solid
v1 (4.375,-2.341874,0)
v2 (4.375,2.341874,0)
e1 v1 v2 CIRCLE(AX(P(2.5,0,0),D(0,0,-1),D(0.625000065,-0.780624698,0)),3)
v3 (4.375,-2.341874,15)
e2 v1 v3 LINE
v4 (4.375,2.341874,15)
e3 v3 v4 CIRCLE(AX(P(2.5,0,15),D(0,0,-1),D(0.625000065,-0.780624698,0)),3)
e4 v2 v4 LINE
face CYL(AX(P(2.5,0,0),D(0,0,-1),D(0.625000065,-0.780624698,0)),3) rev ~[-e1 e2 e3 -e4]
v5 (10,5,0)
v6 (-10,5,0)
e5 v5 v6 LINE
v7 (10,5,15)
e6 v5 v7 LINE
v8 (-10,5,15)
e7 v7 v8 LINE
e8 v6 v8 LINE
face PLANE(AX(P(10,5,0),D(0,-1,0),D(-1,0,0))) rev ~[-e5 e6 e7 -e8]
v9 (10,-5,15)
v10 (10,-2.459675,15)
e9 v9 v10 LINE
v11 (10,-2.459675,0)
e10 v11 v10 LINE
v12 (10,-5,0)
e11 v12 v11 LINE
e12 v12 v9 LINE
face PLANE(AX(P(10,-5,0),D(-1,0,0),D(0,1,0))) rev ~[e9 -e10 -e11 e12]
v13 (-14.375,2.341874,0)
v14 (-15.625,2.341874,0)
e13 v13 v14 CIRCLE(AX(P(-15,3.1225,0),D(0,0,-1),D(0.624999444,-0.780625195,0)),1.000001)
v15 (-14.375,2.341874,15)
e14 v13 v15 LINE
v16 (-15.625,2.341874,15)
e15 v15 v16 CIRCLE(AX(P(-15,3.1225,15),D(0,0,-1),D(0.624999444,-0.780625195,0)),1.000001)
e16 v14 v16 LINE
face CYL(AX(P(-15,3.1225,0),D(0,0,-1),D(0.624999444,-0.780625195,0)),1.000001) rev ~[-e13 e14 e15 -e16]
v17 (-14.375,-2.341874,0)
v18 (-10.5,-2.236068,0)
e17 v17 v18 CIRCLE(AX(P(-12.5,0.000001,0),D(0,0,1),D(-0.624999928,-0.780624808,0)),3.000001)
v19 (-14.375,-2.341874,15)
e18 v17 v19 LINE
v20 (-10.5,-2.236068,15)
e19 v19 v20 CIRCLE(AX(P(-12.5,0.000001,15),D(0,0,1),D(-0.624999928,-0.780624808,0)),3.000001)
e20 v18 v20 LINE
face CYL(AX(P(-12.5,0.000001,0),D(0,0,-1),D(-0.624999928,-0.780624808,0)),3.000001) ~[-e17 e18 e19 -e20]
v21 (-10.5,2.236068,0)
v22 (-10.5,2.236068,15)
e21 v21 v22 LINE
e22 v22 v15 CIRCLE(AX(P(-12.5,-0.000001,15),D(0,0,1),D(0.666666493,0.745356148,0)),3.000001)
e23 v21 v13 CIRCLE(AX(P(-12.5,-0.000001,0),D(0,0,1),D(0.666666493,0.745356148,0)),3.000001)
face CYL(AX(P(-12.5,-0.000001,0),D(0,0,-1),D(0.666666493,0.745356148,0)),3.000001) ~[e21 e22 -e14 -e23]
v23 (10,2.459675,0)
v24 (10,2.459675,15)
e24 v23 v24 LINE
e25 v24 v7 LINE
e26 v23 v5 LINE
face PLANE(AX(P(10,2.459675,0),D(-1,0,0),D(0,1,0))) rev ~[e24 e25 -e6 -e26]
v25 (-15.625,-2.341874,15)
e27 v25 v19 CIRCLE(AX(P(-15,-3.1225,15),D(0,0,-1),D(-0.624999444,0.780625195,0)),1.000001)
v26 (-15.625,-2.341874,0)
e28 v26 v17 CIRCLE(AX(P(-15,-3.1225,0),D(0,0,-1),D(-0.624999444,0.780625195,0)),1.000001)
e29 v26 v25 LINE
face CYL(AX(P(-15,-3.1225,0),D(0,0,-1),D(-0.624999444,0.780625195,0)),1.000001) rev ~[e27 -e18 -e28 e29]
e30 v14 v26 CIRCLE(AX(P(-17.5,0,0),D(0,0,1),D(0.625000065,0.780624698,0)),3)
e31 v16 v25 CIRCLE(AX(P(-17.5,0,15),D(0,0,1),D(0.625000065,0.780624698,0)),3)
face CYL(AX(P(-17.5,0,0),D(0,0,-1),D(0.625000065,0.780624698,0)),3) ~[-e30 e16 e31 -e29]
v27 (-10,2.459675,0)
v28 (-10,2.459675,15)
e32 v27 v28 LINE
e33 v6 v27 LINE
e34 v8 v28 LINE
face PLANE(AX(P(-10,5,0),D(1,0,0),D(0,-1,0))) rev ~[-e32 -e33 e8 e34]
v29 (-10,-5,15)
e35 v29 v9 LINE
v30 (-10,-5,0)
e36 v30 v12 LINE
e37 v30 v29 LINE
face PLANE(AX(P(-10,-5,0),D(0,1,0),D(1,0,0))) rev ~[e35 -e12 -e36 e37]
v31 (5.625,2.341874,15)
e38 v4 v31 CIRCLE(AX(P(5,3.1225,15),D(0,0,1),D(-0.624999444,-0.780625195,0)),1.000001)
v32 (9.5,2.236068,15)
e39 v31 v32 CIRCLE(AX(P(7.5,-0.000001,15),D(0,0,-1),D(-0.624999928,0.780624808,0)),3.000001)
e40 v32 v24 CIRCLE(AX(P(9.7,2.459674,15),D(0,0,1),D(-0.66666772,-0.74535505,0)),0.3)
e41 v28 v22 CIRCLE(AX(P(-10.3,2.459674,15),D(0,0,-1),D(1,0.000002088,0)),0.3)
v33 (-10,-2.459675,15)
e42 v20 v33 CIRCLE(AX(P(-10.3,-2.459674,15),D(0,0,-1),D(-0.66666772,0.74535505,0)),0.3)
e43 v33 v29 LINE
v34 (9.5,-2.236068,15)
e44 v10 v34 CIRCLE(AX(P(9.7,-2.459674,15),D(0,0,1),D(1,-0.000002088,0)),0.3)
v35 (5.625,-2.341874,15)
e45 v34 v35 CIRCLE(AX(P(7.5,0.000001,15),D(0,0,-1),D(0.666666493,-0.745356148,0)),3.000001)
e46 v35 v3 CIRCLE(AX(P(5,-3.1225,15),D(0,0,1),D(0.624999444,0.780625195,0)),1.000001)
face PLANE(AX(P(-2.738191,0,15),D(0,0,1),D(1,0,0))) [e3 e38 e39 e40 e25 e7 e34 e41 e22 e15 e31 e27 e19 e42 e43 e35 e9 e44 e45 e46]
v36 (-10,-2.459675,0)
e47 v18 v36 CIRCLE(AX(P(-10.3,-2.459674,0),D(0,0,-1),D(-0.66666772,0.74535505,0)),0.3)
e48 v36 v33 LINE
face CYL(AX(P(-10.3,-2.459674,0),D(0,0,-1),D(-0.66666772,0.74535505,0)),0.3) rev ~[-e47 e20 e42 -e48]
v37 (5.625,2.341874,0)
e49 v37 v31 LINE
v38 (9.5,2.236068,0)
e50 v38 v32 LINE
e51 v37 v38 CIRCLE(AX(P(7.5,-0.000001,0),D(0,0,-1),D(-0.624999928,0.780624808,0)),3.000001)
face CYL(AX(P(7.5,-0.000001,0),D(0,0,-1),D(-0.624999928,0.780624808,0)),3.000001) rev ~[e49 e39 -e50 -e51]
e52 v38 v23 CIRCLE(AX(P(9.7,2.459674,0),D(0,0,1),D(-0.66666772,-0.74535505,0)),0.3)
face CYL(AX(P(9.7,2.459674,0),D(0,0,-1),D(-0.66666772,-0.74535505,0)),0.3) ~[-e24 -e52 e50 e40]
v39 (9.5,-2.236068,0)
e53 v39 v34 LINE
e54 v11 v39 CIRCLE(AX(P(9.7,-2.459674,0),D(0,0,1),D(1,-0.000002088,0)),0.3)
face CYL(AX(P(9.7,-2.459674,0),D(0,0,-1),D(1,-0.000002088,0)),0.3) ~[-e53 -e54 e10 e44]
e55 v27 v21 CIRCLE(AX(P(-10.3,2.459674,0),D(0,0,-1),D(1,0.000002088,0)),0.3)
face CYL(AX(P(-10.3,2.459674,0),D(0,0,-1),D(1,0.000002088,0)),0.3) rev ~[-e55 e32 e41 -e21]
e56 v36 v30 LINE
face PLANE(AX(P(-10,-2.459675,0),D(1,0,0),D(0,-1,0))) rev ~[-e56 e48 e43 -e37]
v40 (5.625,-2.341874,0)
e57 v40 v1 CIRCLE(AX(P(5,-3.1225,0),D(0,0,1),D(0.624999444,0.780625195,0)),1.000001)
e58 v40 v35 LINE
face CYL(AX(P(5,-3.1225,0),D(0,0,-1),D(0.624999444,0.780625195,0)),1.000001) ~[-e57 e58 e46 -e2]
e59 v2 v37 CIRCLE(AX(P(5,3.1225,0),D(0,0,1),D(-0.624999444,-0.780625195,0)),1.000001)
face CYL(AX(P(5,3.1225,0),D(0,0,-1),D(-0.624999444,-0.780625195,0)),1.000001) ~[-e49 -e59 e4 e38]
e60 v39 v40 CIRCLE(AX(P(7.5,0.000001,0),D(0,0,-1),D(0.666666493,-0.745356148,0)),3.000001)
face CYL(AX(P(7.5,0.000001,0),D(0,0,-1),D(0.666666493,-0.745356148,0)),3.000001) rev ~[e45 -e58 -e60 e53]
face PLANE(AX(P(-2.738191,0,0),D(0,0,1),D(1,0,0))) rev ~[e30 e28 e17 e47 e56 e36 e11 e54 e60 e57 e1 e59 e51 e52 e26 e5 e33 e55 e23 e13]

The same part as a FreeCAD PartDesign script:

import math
import FreeCAD as App
import Part
import Sketcher
from FreeCAD import Vector
Q = App.Units.Quantity

doc = App.newDocument("Part")
body = doc.addObject("PartDesign::Body", "Body")

# Sketch on XY plane
sketch1 = doc.addObject("Sketcher::SketchObject", "Sketch")
body.addObject(sketch1)
sketch1.AttachmentSupport = (doc.XY_Plane, [""])
sketch1.MapMode = "FlatFace"
sketch1.addGeometry([
    Part.LineSegment(Vector(-10, -5, 0), Vector(10, -5, 0)),  # 0
    Part.LineSegment(Vector(10, -5, 0), Vector(10, -2.46, 0)),  # 1
    Part.ArcOfCircle(Part.Circle(Vector(9.7, -2.46, 0), Vector(0, 0, 1), 0.3), math.radians(0), math.radians(132)),  # 2
    Part.ArcOfCircle(Part.Circle(Vector(7.5, 0, 0), Vector(0, 0, 1), 3), math.radians(-129), math.radians(-48)),  # 3
    Part.ArcOfCircle(Part.Circle(Vector(5, -3.12, 0), Vector(0, 0, 1), 1), math.radians(51), math.radians(129)),  # 4
    Part.ArcOfCircle(Part.Circle(Vector(2.5, 0, 0), Vector(0, 0, 1), 3), math.radians(51), math.radians(309)),  # 5
    Part.ArcOfCircle(Part.Circle(Vector(5, 3.12, 0), Vector(0, 0, 1), 1), math.radians(-129), math.radians(-51)),  # 6
    Part.ArcOfCircle(Part.Circle(Vector(7.5, 0, 0), Vector(0, 0, 1), 3), math.radians(48), math.radians(129)),  # 7
    Part.ArcOfCircle(Part.Circle(Vector(9.7, 2.46, 0), Vector(0, 0, 1), 0.3), math.radians(-132), math.radians(0)),  # 8
    Part.LineSegment(Vector(10, 2.46, 0), Vector(10, 5, 0)),  # 9
    Part.LineSegment(Vector(10, 5, 0), Vector(-10, 5, 0)),  # 10
    Part.LineSegment(Vector(-10, 5, 0), Vector(-10, 2.46, 0)),  # 11
    Part.ArcOfCircle(Part.Circle(Vector(-10.3, 2.46, 0), Vector(0, 0, 1), 0.3), math.radians(-132), math.radians(0)),  # 12
    Part.ArcOfCircle(Part.Circle(Vector(-12.5, 0, 0), Vector(0, 0, 1), 3), math.radians(48), math.radians(129)),  # 13
    Part.ArcOfCircle(Part.Circle(Vector(-15, 3.12, 0), Vector(0, 0, 1), 1), math.radians(-129), math.radians(-51)),  # 14
    Part.ArcOfCircle(Part.Circle(Vector(-17.5, 0, 0), Vector(0, 0, 1), 3), math.radians(51), math.radians(309)),  # 15
    Part.ArcOfCircle(Part.Circle(Vector(-15, -3.12, 0), Vector(0, 0, 1), 1), math.radians(51), math.radians(129)),  # 16
    Part.ArcOfCircle(Part.Circle(Vector(-12.5, 0, 0), Vector(0, 0, 1), 3), math.radians(-129), math.radians(-48)),  # 17
    Part.ArcOfCircle(Part.Circle(Vector(-10.3, -2.46, 0), Vector(0, 0, 1), 0.3), math.radians(0), math.radians(132)),  # 18
    Part.LineSegment(Vector(-10, -2.46, 0), Vector(-10, -5, 0)),  # 19
], False)
sketch1.addConstraint([
    Sketcher.Constraint("Coincident", 0, 2, 1, 1),
    Sketcher.Constraint("Coincident", 1, 2, 2, 1),
    Sketcher.Constraint("Tangent", 2, 2, 3, 2),
    Sketcher.Constraint("Tangent", 3, 1, 4, 1),
    Sketcher.Constraint("Tangent", 4, 2, 5, 2),
    Sketcher.Constraint("Tangent", 5, 1, 6, 1),
    Sketcher.Constraint("Tangent", 6, 2, 7, 2),
    Sketcher.Constraint("Tangent", 7, 1, 8, 1),
    Sketcher.Constraint("Coincident", 8, 2, 9, 1),
    Sketcher.Constraint("Coincident", 9, 2, 10, 1),
    Sketcher.Constraint("Coincident", 10, 2, 11, 1),
    Sketcher.Constraint("Coincident", 11, 2, 12, 2),
    Sketcher.Constraint("Tangent", 12, 1, 13, 1),
    Sketcher.Constraint("Tangent", 13, 2, 14, 2),
    Sketcher.Constraint("Tangent", 14, 1, 15, 1),
    Sketcher.Constraint("Tangent", 15, 2, 16, 2),
    Sketcher.Constraint("Tangent", 16, 1, 17, 1),
    Sketcher.Constraint("Tangent", 17, 2, 18, 2),
    Sketcher.Constraint("Coincident", 18, 1, 19, 1),
    Sketcher.Constraint("Coincident", 19, 2, 0, 1),
    Sketcher.Constraint("Horizontal", 0),
    Sketcher.Constraint("Vertical", 1),
    Sketcher.Constraint("Vertical", 9),
    Sketcher.Constraint("Horizontal", 10),
    Sketcher.Constraint("Vertical", 11),
    Sketcher.Constraint("Vertical", 19),
    Sketcher.Constraint("Coincident", 7, 3, 3, 3),
    Sketcher.Constraint("Coincident", 17, 3, 13, 3),
    Sketcher.Constraint("Equal", 3, 5),
    Sketcher.Constraint("Equal", 4, 6),
    Sketcher.Constraint("Equal", 5, 7),
    Sketcher.Constraint("Equal", 2, 8),
    Sketcher.Constraint("Equal", 8, 12),
    Sketcher.Constraint("Equal", 7, 13),
    Sketcher.Constraint("Equal", 6, 14),
    Sketcher.Constraint("Equal", 13, 15),
    Sketcher.Constraint("Equal", 14, 16),
    Sketcher.Constraint("Equal", 15, 17),
    Sketcher.Constraint("Equal", 12, 18),
    Sketcher.Constraint("Symmetric", 0, 2, 10, 2, -1, 1),
    Sketcher.Constraint("Symmetric", 8, 2, 18, 1, -1, 1),
    Sketcher.Constraint("Symmetric", 8, 2, 11, 2, -2),
    Sketcher.Constraint("Symmetric", 4, 3, 6, 3, -1),
    Sketcher.Constraint("Symmetric", 14, 3, 16, 3, -1),
    Sketcher.Constraint("Horizontal", 8, 3, 12, 3),
    Sketcher.Constraint("Horizontal", 6, 3, 14, 3),
    Sketcher.Constraint("Horizontal", 18, 3, 1, 2),
    Sketcher.Constraint("Horizontal", 12, 3, 8, 2),
    Sketcher.Constraint("Radius", 3, Q("3.000001 mm")),
    Sketcher.Constraint("Radius", 4, Q("1.000001 mm")),
    Sketcher.Constraint("Radius", 2, Q("0.3 mm")),
    Sketcher.Constraint("DistanceX", 0, 1, 0, 2, Q("20 mm")),
    Sketcher.Constraint("DistanceX", -1, 1, 4, 3, Q("5 mm")),
    Sketcher.Constraint("DistanceY", 0, 2, -1, 1, Q("5 mm")),
    Sketcher.Constraint("DistanceX", 5, 3, 3, 3, Q("5 mm")),
])
pad1 = doc.addObject("PartDesign::Pad", "Pad")
body.addObject(pad1)
pad1.Profile = sketch1
pad1.Length = 15

doc.recompute()
